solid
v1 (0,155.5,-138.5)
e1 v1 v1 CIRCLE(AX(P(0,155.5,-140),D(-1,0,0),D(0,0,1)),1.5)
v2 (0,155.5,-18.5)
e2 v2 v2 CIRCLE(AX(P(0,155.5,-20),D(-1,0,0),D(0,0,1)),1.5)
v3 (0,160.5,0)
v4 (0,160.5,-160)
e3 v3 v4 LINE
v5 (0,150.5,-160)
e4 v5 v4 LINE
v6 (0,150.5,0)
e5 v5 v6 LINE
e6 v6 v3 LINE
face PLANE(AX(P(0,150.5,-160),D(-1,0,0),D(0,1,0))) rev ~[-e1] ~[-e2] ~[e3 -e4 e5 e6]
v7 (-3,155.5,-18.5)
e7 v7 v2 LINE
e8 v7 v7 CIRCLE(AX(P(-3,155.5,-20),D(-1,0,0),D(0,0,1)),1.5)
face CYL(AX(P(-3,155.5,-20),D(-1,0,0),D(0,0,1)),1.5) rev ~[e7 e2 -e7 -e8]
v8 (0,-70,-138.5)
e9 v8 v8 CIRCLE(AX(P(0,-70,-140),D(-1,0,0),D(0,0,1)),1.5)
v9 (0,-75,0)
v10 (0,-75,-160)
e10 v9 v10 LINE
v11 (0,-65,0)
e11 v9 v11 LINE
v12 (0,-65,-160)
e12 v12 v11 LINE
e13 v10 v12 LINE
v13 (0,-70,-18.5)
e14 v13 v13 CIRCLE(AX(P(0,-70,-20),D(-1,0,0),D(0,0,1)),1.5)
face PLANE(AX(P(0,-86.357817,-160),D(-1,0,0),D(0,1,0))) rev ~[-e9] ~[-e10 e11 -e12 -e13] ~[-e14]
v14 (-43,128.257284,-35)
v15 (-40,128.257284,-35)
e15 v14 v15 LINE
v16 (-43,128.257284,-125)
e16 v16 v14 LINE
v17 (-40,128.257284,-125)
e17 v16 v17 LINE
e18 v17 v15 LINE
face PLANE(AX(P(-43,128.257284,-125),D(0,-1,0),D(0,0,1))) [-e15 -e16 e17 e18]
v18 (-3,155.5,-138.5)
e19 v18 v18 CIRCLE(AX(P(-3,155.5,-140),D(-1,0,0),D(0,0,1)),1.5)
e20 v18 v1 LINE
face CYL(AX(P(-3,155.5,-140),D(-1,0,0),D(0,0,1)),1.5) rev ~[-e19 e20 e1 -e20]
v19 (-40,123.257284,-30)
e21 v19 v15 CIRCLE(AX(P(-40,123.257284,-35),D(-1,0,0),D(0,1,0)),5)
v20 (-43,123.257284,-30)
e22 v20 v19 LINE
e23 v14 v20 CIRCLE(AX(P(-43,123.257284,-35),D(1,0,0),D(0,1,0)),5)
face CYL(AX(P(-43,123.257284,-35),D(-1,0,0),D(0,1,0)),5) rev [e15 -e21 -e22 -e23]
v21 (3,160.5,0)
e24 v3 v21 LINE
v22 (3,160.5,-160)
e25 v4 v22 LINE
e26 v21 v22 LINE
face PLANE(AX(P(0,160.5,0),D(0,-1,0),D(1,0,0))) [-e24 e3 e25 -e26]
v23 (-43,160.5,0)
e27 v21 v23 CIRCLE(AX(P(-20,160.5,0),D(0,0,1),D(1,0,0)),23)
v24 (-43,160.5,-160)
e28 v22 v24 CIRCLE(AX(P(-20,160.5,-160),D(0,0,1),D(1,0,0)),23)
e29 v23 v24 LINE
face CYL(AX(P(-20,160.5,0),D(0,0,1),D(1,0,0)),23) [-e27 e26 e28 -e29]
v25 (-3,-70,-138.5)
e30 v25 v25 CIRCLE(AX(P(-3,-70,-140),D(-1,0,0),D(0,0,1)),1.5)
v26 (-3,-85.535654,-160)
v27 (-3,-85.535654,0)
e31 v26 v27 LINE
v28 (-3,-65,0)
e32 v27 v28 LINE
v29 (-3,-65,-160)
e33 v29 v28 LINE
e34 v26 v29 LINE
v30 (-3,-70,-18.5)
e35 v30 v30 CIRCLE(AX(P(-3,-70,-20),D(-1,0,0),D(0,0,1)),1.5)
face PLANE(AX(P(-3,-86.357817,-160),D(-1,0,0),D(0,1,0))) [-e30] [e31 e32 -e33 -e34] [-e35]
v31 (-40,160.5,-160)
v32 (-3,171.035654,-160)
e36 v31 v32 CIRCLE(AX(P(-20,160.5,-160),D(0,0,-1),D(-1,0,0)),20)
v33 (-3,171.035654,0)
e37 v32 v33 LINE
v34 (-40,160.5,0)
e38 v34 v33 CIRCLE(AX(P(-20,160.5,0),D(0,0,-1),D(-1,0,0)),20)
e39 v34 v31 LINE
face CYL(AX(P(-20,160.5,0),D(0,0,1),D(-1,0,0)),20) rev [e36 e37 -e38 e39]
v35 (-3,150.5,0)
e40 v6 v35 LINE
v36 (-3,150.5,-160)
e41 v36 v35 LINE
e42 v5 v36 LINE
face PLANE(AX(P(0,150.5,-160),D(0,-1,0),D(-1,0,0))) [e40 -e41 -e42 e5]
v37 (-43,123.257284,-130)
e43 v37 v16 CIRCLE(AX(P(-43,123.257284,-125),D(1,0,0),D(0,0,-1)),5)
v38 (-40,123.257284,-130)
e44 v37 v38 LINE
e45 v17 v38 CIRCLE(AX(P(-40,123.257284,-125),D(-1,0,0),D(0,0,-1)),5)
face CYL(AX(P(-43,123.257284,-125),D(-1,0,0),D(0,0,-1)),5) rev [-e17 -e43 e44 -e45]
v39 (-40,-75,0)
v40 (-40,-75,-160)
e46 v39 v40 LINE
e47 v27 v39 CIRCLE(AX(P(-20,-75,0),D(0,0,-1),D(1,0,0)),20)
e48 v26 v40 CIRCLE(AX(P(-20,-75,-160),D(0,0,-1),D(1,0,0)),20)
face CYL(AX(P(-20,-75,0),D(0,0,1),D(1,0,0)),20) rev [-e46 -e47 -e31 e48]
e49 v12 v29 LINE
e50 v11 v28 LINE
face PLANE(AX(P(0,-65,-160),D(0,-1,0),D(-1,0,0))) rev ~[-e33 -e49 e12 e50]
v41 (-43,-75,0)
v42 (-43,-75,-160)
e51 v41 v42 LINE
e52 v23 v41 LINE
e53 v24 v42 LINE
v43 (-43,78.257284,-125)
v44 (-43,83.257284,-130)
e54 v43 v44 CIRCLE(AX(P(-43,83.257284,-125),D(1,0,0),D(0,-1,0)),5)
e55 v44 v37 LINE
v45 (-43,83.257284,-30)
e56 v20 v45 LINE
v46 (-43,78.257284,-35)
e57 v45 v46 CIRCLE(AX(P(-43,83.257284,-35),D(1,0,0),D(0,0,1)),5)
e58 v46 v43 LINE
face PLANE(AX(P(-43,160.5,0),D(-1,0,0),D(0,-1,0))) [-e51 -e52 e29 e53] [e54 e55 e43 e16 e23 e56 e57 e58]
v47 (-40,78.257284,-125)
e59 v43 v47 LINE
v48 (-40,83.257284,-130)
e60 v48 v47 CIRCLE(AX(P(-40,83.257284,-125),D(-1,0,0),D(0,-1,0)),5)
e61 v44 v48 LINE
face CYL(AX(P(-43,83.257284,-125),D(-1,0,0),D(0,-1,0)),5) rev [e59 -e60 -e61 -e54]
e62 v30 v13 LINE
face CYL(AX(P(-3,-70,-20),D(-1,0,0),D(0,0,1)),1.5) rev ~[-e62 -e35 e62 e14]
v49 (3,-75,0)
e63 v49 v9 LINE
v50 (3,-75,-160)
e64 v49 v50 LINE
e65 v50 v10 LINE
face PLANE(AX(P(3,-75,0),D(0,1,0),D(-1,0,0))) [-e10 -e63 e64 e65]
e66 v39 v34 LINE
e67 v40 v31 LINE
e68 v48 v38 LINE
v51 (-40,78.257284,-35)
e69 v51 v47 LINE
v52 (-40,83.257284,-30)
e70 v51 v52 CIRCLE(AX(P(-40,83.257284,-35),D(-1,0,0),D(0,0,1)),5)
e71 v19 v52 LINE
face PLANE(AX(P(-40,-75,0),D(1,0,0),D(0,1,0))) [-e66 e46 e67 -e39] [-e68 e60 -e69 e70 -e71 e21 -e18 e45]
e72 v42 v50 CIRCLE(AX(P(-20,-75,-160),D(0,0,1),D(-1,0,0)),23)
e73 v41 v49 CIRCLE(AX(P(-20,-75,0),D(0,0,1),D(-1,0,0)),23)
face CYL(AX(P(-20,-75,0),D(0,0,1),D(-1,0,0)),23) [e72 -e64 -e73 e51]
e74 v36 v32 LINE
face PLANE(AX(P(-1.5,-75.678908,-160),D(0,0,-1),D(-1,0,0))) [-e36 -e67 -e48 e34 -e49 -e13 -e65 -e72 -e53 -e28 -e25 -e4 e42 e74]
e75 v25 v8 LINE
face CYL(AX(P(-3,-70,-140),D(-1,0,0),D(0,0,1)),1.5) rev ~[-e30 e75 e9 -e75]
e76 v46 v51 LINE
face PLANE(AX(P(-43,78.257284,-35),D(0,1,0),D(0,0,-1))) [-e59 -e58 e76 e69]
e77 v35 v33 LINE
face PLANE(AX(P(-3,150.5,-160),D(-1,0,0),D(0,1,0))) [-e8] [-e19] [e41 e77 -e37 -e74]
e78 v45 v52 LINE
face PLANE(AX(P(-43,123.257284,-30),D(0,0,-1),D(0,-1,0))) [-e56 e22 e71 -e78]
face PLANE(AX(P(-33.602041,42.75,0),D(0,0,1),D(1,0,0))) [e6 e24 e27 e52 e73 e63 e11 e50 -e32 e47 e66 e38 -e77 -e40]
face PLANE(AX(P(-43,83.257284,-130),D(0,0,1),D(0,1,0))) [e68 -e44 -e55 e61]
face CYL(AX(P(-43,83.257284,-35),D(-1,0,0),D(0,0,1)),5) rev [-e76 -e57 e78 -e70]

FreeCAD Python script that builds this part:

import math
import FreeCAD as App
import Part
import Sketcher

V = App.Vector

doc = App.newDocument("Part")
params = doc.addObject("Spreadsheet::Sheet", "Params")
for row, (alias, value) in enumerate([
    ("sketch1_radius", "20 mm"),
    ("sketch1_radius2", "23 mm"),
    ("sketch1_height", "235.5 mm"),
    ("pad1_length", "160 mm"),
    ("sketch2_width", "3 mm"),
    ("pad2_length", "160 mm"),
    ("sketch3_diameter", "3 mm"),
    ("sketch4_radius", "5 mm"),
    ("sketch4_width", "40 mm"),
    ("sketch4_height", "90 mm"),
], start=1):
    params.set(f"A{row}", alias)
    params.set(f"B{row}", "=" + value)
    params.setAlias(f"B{row}", alias)

body = doc.addObject("PartDesign::Body", "Body")

# Sketch on XY plane
sketch1 = body.newObject("Sketcher::SketchObject", "Sketch")
sketch1.AttachmentSupport = (doc.getObject("XY_Plane"), [""])
sketch1.MapMode = "FlatFace"
sketch1.addGeometry(Part.LineSegment(V(-40, -75, 0), V(-40, 160.5, 0)), False)
sketch1.addGeometry(Part.ArcOfCircle(Part.Circle(V(-20, 160.5, 0), V(0, 0, 1), 20), math.radians(0), math.radians(180)), False)
sketch1.addGeometry(Part.LineSegment(V(0, 160.5, 0), V(3, 160.5, 0)), False)
sketch1.addGeometry(Part.ArcOfCircle(Part.Circle(V(-20, 160.5, 0), V(0, 0, 1), 23), math.radians(0), math.radians(180)), False)
sketch1.addGeometry(Part.LineSegment(V(-43, 160.5, 0), V(-43, -75, 0)), False)
sketch1.addGeometry(Part.ArcOfCircle(Part.Circle(V(-20, -75, 0), V(0, 0, 1), 23), math.radians(180), math.radians(360)), False)
sketch1.addGeometry(Part.LineSegment(V(3, -75, 0), V(0, -75, 0)), False)
sketch1.addGeometry(Part.ArcOfCircle(Part.Circle(V(-20, -75, 0), V(0, 0, 1), 20), math.radians(180), math.radians(360)), False)
sketch1.addConstraint(Sketcher.Constraint("Tangent", 0, 2, 1, 2))
sketch1.addConstraint(Sketcher.Constraint("Coincident", 1, 1, 2, 1))
sketch1.addConstraint(Sketcher.Constraint("Coincident", 2, 2, 3, 1))
sketch1.addConstraint(Sketcher.Constraint("Tangent", 3, 2, 4, 1))
sketch1.addConstraint(Sketcher.Constraint("Tangent", 4, 2, 5, 1))
sketch1.addConstraint(Sketcher.Constraint("Coincident", 5, 2, 6, 1))
sketch1.addConstraint(Sketcher.Constraint("Coincident", 6, 2, 7, 2))
sketch1.addConstraint(Sketcher.Constraint("Tangent", 7, 1, 0, 1))
sketch1.addConstraint(Sketcher.Constraint("Vertical", 0))
sketch1.addConstraint(Sketcher.Constraint("Horizontal", 2))
sketch1.addConstraint(Sketcher.Constraint("Vertical", 4))
sketch1.addConstraint(Sketcher.Constraint("Horizontal", 6))
sketch1.addConstraint(Sketcher.Constraint("Coincident", 3, 3, 1, 3))
sketch1.addConstraint(Sketcher.Constraint("Coincident", 7, 3, 5, 3))
sketch1.addConstraint(Sketcher.Constraint("Equal", 3, 5))
sketch1.addConstraint(Sketcher.Constraint("PointOnObject", 1, 1, -2))
sketch1.addConstraint(Sketcher.Constraint("Horizontal", 0, 2, 1, 1))
sketch1.addConstraint(Sketcher.Constraint("Horizontal", 4, 2, 5, 2))
sketch1.addConstraint(Sketcher.Constraint("Radius", 1, 20.0))
sketch1.addConstraint(Sketcher.Constraint("Radius", 3, 23.0))
sketch1.addConstraint(Sketcher.Constraint("DistanceY", 0, 1, 0, 2, 235.5))
sketch1.addConstraint(Sketcher.Constraint("DistanceY", 5, 3, -1, 1, 75.0))
sketch1.setExpression("Constraints[18]", "Params.sketch1_radius")
sketch1.setExpression("Constraints[19]", "Params.sketch1_radius2")
sketch1.setExpression("Constraints[20]", "Params.sketch1_height")
pad1 = body.newObject("PartDesign::Pad", "Pad")
pad1.Profile = sketch1
pad1.setExpression("Length", "Params.pad1_length")
pad1.Reversed = True

# Sketch on XY plane
sketch2 = body.newObject("Sketcher::SketchObject", "Sketch001")
sketch2.AttachmentSupport = (doc.getObject("XY_Plane"), [""])
sketch2.MapMode = "FlatFace"
sketch2.AttachmentOffset = App.Placement(V(0, 0, -160), App.Rotation())
sketch2.addGeometry(Part.LineSegment(V(0, -65, 0), V(0, -86.4, 0)), False)
sketch2.addGeometry(Part.LineSegment(V(0, -86.4, 0), V(-3, -86.4, 0)), False)
sketch2.addGeometry(Part.LineSegment(V(-3, -86.4, 0), V(-3, -65, 0)), False)
sketch2.addGeometry(Part.LineSegment(V(-3, -65, 0), V(0, -65, 0)), False)
sketch2.addGeometry(Part.LineSegment(V(0, 171.9, 0), V(0, 150.5, 0)), False)
sketch2.addGeometry(Part.LineSegment(V(0, 150.5, 0), V(-3, 150.5, 0)), False)
sketch2.addGeometry(Part.LineSegment(V(-3, 150.5, 0), V(-3, 171.9, 0)), False)
sketch2.addGeometry(Part.LineSegment(V(-3, 171.9, 0), V(0, 171.9, 0)), False)
sketch2.addConstraint(Sketcher.Constraint("Coincident", 0, 2, 1, 1))
sketch2.addConstraint(Sketcher.Constraint("Coincident", 1, 2, 2, 1))
sketch2.addConstraint(Sketcher.Constraint("Coincident", 2, 2, 3, 1))
sketch2.addConstraint(Sketcher.Constraint("Coincident", 3, 2, 0, 1))
sketch2.addConstraint(Sketcher.Constraint("Coincident", 4, 2, 5, 1))
sketch2.addConstraint(Sketcher.Constraint("Coincident", 5, 2, 6, 1))
sketch2.addConstraint(Sketcher.Constraint("Coincident", 6, 2, 7, 1))
sketch2.addConstraint(Sketcher.Constraint("Coincident", 7, 2, 4, 1))
sketch2.addConstraint(Sketcher.Constraint("Vertical", 0))
sketch2.addConstraint(Sketcher.Constraint("Horizontal", 1))
sketch2.addConstraint(Sketcher.Constraint("Vertical", 2))
sketch2.addConstraint(Sketcher.Constraint("Horizontal", 3))
sketch2.addConstraint(Sketcher.Constraint("Vertical", 4))
sketch2.addConstraint(Sketcher.Constraint("Horizontal", 5))
sketch2.addConstraint(Sketcher.Constraint("Vertical", 6))
sketch2.addConstraint(Sketcher.Constraint("Horizontal", 7))
sketch2.addConstraint(Sketcher.Constraint("PointOnObject", 0, 2, -2))
sketch2.addConstraint(Sketcher.Constraint("PointOnObject", 4, 2, -2))
sketch2.addConstraint(Sketcher.Constraint("Vertical", 2, 2, 5, 2))
sketch2.addConstraint(Sketcher.Constraint("Equal", 2, 4))
sketch2.addConstraint(Sketcher.Constraint("DistanceX", 1, 2, 1, 1, 3.0))
sketch2.addConstraint(Sketcher.Constraint("DistanceY", 2, 2, -1, 1, 65.0))
sketch2.addConstraint(Sketcher.Constraint("DistanceY", -1, 1, 4, 2, 150.5))
sketch2.addConstraint(Sketcher.Constraint("DistanceY", 0, 2, 0, 1, 21.357817))
sketch2.setExpression("Constraints[20]", "Params.sketch2_width")
pad2 = body.newObject("PartDesign::Pad", "Pad001")
pad2.Profile = sketch2
pad2.setExpression("Length", "Params.pad2_length")

# Sketch on YZ plane
sketch3 = body.newObject("Sketcher::SketchObject", "Sketch002")
sketch3.AttachmentSupport = (doc.getObject("YZ_Plane"), [""])
sketch3.MapMode = "FlatFace"
sketch3.AttachmentOffset = App.Placement(V(0, 0, -3), App.Rotation())
sketch3.addGeometry(Part.Circle(V(-70, -140, 0), V(0, 0, 1), 1.5), False)
sketch3.addGeometry(Part.Circle(V(-70, -20, 0), V(0, 0, 1), 1.5), False)
sketch3.addGeometry(Part.Circle(V(155.5, -20, 0), V(0, 0, 1), 1.5), False)
sketch3.addGeometry(Part.Circle(V(155.5, -140, 0), V(0, 0, 1), 1.5), False)
sketch3.addConstraint(Sketcher.Constraint("Equal", 0, 1))
sketch3.addConstraint(Sketcher.Constraint("Equal", 1, 2))
sketch3.addConstraint(Sketcher.Constraint("Equal", 2, 3))
sketch3.addConstraint(Sketcher.Constraint("Horizontal", 1, 3, 2, 3))
sketch3.addConstraint(Sketcher.Constraint("Horizontal", 0, 3, 3, 3))
sketch3.addConstraint(Sketcher.Constraint("Vertical", 0, 3, 1, 3))
sketch3.addConstraint(Sketcher.Constraint("Vertical", 2, 3, 3, 3))
sketch3.addConstraint(Sketcher.Constraint("Diameter", 0, 3.0))
sketch3.addConstraint(Sketcher.Constraint("DistanceX", 0, 3, -1, 1, 70.0))
sketch3.addConstraint(Sketcher.Constraint("DistanceY", 0, 3, -1, 1, 140.0))
sketch3.addConstraint(Sketcher.Constraint("DistanceY", 1, 3, -1, 1, 20.0))
sketch3.addConstraint(Sketcher.Constraint("DistanceX", -1, 1, 2, 3, 155.5))
sketch3.setExpression("Constraints[7]", "Params.sketch3_diameter")
pocket1 = body.newObject("PartDesign::Pocket", "Pocket")
pocket1.Profile = sketch3
pocket1.Type = "ThroughAll"
pocket1.Reversed = True

# Sketch on YZ plane
sketch4 = body.newObject("Sketcher::SketchObject", "Sketch003")
sketch4.AttachmentSupport = (doc.getObject("YZ_Plane"), [""])
sketch4.MapMode = "FlatFace"
sketch4.AttachmentOffset = App.Placement(V(0, 0, -43), App.Rotation())
sketch4.addGeometry(Part.LineSegment(V(128, -35, 0), V(128, -125, 0)), False)
sketch4.addGeometry(Part.ArcOfCircle(Part.Circle(V(123, -125, 0), V(0, 0, 1), 5), math.radians(-90), math.radians(0)), False)
sketch4.addGeometry(Part.LineSegment(V(123, -130, 0), V(83, -130, 0)), False)
sketch4.addGeometry(Part.ArcOfCircle(Part.Circle(V(83, -125, 0), V(0, 0, 1), 5), math.radians(180), math.radians(270)), False)
sketch4.addGeometry(Part.LineSegment(V(78, -125, 0), V(78, -35, 0)), False)
sketch4.addGeometry(Part.ArcOfCircle(Part.Circle(V(83, -35, 0), V(0, 0, 1), 5), math.radians(90), math.radians(180)), False)
sketch4.addGeometry(Part.LineSegment(V(83, -30, 0), V(123, -30, 0)), False)
sketch4.addGeometry(Part.ArcOfCircle(Part.Circle(V(123, -35, 0), V(0, 0, 1), 5), math.radians(0), math.radians(90)), False)
sketch4.addConstraint(Sketcher.Constraint("Tangent", 0, 2, 1, 2))
sketch4.addConstraint(Sketcher.Constraint("Tangent", 1, 1, 2, 1))
sketch4.addConstraint(Sketcher.Constraint("Tangent", 2, 2, 3, 2))
sketch4.addConstraint(Sketcher.Constraint("Tangent", 3, 1, 4, 1))
sketch4.addConstraint(Sketcher.Constraint("Tangent", 4, 2, 5, 2))
sketch4.addConstraint(Sketcher.Constraint("Tangent", 5, 1, 6, 1))
sketch4.addConstraint(Sketcher.Constraint("Tangent", 6, 2, 7, 2))
sketch4.addConstraint(Sketcher.Constraint("Tangent", 7, 1, 0, 1))
sketch4.addConstraint(Sketcher.Constraint("Vertical", 0))
sketch4.addConstraint(Sketcher.Constraint("Horizontal", 2))
sketch4.addConstraint(Sketcher.Constraint("Vertical", 4))
sketch4.addConstraint(Sketcher.Constraint("Horizontal", 6))
sketch4.addConstraint(Sketcher.Constraint("Equal", 1, 3))
sketch4.addConstraint(Sketcher.Constraint("Equal", 3, 5))
sketch4.addConstraint(Sketcher.Constraint("Equal", 5, 7))
sketch4.addConstraint(Sketcher.Constraint("Radius", 1, 5.0))
sketch4.addConstraint(Sketcher.Constraint("DistanceX", 2, 2, 2, 1, 40.0))
sketch4.addConstraint(Sketcher.Constraint("DistanceY", 0, 2, 0, 1, 90.0))
sketch4.addConstraint(Sketcher.Constraint("DistanceY", 1, 3, -1, 1, 125.0))
sketch4.addConstraint(Sketcher.Constraint("DistanceX", -1, 1, 1, 3, 123.257284))
sketch4.setExpression("Constraints[15]", "Params.sketch4_radius")
sketch4.setExpression("Constraints[16]", "Params.sketch4_width")
sketch4.setExpression("Constraints[17]", "Params.sketch4_height")
pocket2 = body.newObject("PartDesign::Pocket", "Pocket001")
pocket2.Profile = sketch4
pocket2.Type = "UpToFirst"
pocket2.Reversed = True

doc.recompute()
